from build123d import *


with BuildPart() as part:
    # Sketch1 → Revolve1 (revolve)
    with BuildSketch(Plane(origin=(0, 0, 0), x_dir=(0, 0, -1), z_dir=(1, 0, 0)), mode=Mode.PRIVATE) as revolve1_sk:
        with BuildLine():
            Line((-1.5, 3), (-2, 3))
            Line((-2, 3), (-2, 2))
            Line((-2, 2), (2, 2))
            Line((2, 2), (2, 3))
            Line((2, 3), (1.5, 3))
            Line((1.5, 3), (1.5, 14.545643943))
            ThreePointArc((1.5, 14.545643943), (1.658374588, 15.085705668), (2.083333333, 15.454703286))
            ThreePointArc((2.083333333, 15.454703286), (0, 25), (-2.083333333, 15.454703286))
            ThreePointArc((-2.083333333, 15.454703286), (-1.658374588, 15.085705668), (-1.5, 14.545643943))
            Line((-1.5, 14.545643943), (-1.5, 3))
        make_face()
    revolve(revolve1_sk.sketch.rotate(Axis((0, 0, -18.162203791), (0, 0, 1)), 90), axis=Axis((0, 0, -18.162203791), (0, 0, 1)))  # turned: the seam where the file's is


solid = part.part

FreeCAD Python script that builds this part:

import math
import FreeCAD as App
import Part
import Sketcher

V = App.Vector
Q = App.Units.Quantity

doc = App.newDocument("Part")
body = doc.addObject("PartDesign::Body", "Body")

sketch1 = body.newObject("Sketcher::SketchObject", "Sketch")
sketch1.AttachmentSupport = (doc.getObject("YZ_Plane"), [""])
sketch1.MapMode = "FlatFace"
sketch1.addGeometry(Part.LineSegment(V(3, 1.5, 0), V(3, 2, 0)), False)
sketch1.addGeometry(Part.LineSegment(V(3, 2, 0), V(2, 2, 0)), False)
sketch1.addGeometry(Part.LineSegment(V(2, 2, 0), V(2, -2, 0)), False)
sketch1.addGeometry(Part.LineSegment(V(2, -2, 0), V(3, -2, 0)), False)
sketch1.addGeometry(Part.LineSegment(V(3, -2, 0), V(3, -1.5, 0)), False)
sketch1.addGeometry(Part.LineSegment(V(3, -1.5, 0), V(14.5, -1.5, 0)), False)
sketch1.addGeometry(Part.ArcOfCircle(Part.Circle(V(14.5, -2.5, 0), V(0, 0, 1), 1), math.radians(25), math.radians(90)), False)
sketch1.addGeometry(Part.ArcOfCircle(Part.Circle(V(20, 0, 0), V(0, 0, 1), 5), math.radians(-155), math.radians(155)), False)
sketch1.addGeometry(Part.ArcOfCircle(Part.Circle(V(14.5, 2.5, 0), V(0, 0, 1), 1), math.radians(-90), math.radians(-25)), False)
sketch1.addGeometry(Part.LineSegment(V(14.5, 1.5, 0), V(3, 1.5, 0)), False)
sketch1.addConstraint(Sketcher.Constraint("Coincident", 0, 2, 1, 1))
sketch1.addConstraint(Sketcher.Constraint("Coincident", 1, 2, 2, 1))
sketch1.addConstraint(Sketcher.Constraint("Coincident", 2, 2, 3, 1))
sketch1.addConstraint(Sketcher.Constraint("Coincident", 3, 2, 4, 1))
sketch1.addConstraint(Sketcher.Constraint("Coincident", 4, 2, 5, 1))
sketch1.addConstraint(Sketcher.Constraint("Tangent", 5, 2, 6, 2))
sketch1.addConstraint(Sketcher.Constraint("Tangent", 6, 1, 7, 1))
sketch1.addConstraint(Sketcher.Constraint("Tangent", 7, 2, 8, 2))
sketch1.addConstraint(Sketcher.Constraint("Tangent", 8, 1, 9, 1))
sketch1.addConstraint(Sketcher.Constraint("Coincident", 9, 2, 0, 1))
sketch1.addConstraint(Sketcher.Constraint("Vertical", 0))
sketch1.addConstraint(Sketcher.Constraint("Horizontal", 1))
sketch1.addConstraint(Sketcher.Constraint("Vertical", 2))
sketch1.addConstraint(Sketcher.Constraint("Horizontal", 3))
sketch1.addConstraint(Sketcher.Constraint("Vertical", 4))
sketch1.addConstraint(Sketcher.Constraint("Horizontal", 5))
sketch1.addConstraint(Sketcher.Constraint("Horizontal", 9))
sketch1.addConstraint(Sketcher.Constraint("Equal", 6, 8))
sketch1.addConstraint(Sketcher.Constraint("Symmetric", 6, 3, 8, 3, -1))
sketch1.addConstraint(Sketcher.Constraint("Symmetric", 0, 2, 3, 2, -1))
sketch1.addConstraint(Sketcher.Constraint("Radius", 6, Q("1 mm")))
sketch1.addConstraint(Sketcher.Constraint("Radius", 7, Q("5 mm")))
sketch1.addConstraint(Sketcher.Constraint("DistanceX", 1, 2, 1, 1, Q("1 mm")))
sketch1.addConstraint(Sketcher.Constraint("DistanceY", 2, 2, 2, 1, Q("4 mm")))
sketch1.addConstraint(Sketcher.Constraint("DistanceY", 0, 1, 0, 2, Q("0.5 mm")))
sketch1.addConstraint(Sketcher.Constraint("DistanceX", -1, 1, 7, 3, Q("20 mm")))
sketch1.addConstraint(Sketcher.Constraint("DistanceX", -1, 1, 0, 2, Q("3 mm")))
revolution = body.newObject("PartDesign::Revolution", "Revolution")
revolution.Profile = sketch1
revolution.ReferenceAxis = (sketch1, ["V_Axis"])
revolution.Angle = 360

doc.recompute()
